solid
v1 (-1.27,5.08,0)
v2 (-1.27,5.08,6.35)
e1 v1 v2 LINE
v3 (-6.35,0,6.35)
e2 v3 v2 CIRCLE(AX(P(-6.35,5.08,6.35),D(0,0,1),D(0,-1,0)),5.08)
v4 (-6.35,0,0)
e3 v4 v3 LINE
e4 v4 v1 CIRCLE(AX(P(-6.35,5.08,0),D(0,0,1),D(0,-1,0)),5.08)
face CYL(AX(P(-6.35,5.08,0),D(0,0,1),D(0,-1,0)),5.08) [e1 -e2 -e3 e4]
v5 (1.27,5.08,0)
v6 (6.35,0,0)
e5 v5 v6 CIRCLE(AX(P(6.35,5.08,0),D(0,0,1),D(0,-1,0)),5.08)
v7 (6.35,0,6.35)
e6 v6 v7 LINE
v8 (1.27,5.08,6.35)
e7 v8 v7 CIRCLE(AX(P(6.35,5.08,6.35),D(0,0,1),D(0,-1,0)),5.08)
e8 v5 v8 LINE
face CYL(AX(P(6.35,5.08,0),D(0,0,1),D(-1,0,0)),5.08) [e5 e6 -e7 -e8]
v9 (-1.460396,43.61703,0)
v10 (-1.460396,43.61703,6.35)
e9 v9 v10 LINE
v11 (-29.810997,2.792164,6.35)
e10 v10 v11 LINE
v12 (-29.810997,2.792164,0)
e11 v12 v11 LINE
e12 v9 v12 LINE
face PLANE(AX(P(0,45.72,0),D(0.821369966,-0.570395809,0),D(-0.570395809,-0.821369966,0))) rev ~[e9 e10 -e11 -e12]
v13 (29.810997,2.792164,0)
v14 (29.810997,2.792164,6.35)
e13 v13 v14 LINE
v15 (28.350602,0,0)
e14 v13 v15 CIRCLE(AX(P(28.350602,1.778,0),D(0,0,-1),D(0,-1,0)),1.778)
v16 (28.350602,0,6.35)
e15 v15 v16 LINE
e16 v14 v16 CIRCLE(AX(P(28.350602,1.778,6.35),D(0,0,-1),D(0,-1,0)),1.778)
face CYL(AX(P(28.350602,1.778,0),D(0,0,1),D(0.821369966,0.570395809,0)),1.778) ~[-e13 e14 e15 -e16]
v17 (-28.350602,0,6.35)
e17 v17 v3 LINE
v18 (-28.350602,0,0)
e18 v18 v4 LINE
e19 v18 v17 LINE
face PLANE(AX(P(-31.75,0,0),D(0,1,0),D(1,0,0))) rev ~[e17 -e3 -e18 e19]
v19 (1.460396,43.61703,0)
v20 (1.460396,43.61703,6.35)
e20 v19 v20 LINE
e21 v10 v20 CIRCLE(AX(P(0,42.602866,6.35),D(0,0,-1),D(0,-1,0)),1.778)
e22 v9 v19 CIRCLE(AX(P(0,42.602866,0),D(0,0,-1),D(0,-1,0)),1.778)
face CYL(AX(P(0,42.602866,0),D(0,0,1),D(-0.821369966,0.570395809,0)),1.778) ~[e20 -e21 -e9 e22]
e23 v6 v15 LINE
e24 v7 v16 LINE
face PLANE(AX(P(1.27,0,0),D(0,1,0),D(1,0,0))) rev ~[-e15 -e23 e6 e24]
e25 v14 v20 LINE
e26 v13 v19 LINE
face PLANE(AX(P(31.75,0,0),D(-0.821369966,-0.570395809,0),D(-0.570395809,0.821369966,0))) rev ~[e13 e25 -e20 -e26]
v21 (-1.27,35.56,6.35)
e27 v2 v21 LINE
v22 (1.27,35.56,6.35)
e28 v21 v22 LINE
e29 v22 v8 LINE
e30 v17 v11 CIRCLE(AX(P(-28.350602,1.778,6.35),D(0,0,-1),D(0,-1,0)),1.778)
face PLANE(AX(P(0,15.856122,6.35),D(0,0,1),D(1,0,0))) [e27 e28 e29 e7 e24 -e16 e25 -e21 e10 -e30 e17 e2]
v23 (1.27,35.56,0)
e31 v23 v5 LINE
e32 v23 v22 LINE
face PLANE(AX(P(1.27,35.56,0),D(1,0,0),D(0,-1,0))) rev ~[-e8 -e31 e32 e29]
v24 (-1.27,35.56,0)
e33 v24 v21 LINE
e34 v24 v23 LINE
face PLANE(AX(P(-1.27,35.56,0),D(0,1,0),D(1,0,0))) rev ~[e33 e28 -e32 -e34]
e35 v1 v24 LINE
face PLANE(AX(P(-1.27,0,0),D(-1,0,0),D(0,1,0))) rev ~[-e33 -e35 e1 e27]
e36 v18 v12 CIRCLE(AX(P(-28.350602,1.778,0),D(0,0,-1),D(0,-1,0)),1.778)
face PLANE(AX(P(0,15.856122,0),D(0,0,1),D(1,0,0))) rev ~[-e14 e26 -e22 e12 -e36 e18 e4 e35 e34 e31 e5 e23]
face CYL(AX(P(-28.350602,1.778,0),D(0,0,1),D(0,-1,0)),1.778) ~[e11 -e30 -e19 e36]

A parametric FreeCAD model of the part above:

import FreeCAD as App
import Part
import Sketcher
Q = App.Units.Quantity


def edges_at(feature, points):
    """Names of the edges that pass closest to the given points."""
    edges = feature.Shape.Edges
    near = lambda p: min(range(len(edges)), key=lambda i: edges[i].distToShape(Part.Vertex(*p))[0])
    return sorted({f"Edge{near(p) + 1}" for p in points})


def add_polygon(sketch, points):
    """Adds a closed chain of lines whose ends are joined by coincident constraints."""
    first, n = sketch.GeometryCount, len(points)
    for a, b in zip(points, points[1:] + points[:1]):
        sketch.addGeometry(Part.LineSegment(App.Vector(*a, 0), App.Vector(*b, 0)), False)
    for i in range(n):
        sketch.addConstraint(Sketcher.Constraint("Coincident", first + i, 2, first + (i + 1) % n, 1))

doc = App.newDocument("Part")
body = doc.addObject("PartDesign::Body", "Body")

sketch1 = body.newObject("Sketcher::SketchObject", "Sketch")
sketch1.AttachmentSupport = (doc.getObject("XY_Plane"), [""])
sketch1.MapMode = "FlatFace"
add_polygon(sketch1, [(31.75, 0), (0, 45.72), (-31.75, 0), (-1.27, 0), (-1.27, 35.56), (1.27, 35.56), (1.27, 0)])
sketch1.addConstraint([
    Sketcher.Constraint("Horizontal", 2),
    Sketcher.Constraint("Vertical", 3),
    Sketcher.Constraint("Horizontal", 4),
    Sketcher.Constraint("Vertical", 5),
    Sketcher.Constraint("Horizontal", 6),
    Sketcher.Constraint("Symmetric", 2, 2, 5, 2, -1, 1),
    Sketcher.Constraint("Symmetric", 1, 2, 6, 2, -2),
    Sketcher.Constraint("PointOnObject", 0, 2, -2),
    Sketcher.Constraint("DistanceX", 2, 1, 2, 2, Q("1.2 in")),
    Sketcher.Constraint("DistanceX", 4, 1, 4, 2, Q("0.1 in")),
    Sketcher.Constraint("DistanceY", 3, 1, 3, 2, Q("1.4 in")),
    Sketcher.Constraint("DistanceY", -1, 1, 0, 2, Q("1.8 in")),
])
pad1 = body.newObject("PartDesign::Pad", "Pad")
pad1.Profile = sketch1
pad1.Length = Q("0.25 in")
doc.recompute()

fillet = body.newObject("PartDesign::Fillet", "Fillet")
fillet.Base = (pad1, edges_at(pad1, [(-1.27, 0, 3.175), (1.27, 0, 3.175)]))
fillet.Radius = Q("0.2 in")
doc.recompute()

fillet2 = body.newObject("PartDesign::Fillet", "Fillet001")
fillet2.Base = (fillet, edges_at(fillet, [(0, 45.72, 3.175), (31.75, 0, 3.175), (-31.75, 0, 3.175)]))
fillet2.Radius = Q("0.07 in")

doc.recompute()
